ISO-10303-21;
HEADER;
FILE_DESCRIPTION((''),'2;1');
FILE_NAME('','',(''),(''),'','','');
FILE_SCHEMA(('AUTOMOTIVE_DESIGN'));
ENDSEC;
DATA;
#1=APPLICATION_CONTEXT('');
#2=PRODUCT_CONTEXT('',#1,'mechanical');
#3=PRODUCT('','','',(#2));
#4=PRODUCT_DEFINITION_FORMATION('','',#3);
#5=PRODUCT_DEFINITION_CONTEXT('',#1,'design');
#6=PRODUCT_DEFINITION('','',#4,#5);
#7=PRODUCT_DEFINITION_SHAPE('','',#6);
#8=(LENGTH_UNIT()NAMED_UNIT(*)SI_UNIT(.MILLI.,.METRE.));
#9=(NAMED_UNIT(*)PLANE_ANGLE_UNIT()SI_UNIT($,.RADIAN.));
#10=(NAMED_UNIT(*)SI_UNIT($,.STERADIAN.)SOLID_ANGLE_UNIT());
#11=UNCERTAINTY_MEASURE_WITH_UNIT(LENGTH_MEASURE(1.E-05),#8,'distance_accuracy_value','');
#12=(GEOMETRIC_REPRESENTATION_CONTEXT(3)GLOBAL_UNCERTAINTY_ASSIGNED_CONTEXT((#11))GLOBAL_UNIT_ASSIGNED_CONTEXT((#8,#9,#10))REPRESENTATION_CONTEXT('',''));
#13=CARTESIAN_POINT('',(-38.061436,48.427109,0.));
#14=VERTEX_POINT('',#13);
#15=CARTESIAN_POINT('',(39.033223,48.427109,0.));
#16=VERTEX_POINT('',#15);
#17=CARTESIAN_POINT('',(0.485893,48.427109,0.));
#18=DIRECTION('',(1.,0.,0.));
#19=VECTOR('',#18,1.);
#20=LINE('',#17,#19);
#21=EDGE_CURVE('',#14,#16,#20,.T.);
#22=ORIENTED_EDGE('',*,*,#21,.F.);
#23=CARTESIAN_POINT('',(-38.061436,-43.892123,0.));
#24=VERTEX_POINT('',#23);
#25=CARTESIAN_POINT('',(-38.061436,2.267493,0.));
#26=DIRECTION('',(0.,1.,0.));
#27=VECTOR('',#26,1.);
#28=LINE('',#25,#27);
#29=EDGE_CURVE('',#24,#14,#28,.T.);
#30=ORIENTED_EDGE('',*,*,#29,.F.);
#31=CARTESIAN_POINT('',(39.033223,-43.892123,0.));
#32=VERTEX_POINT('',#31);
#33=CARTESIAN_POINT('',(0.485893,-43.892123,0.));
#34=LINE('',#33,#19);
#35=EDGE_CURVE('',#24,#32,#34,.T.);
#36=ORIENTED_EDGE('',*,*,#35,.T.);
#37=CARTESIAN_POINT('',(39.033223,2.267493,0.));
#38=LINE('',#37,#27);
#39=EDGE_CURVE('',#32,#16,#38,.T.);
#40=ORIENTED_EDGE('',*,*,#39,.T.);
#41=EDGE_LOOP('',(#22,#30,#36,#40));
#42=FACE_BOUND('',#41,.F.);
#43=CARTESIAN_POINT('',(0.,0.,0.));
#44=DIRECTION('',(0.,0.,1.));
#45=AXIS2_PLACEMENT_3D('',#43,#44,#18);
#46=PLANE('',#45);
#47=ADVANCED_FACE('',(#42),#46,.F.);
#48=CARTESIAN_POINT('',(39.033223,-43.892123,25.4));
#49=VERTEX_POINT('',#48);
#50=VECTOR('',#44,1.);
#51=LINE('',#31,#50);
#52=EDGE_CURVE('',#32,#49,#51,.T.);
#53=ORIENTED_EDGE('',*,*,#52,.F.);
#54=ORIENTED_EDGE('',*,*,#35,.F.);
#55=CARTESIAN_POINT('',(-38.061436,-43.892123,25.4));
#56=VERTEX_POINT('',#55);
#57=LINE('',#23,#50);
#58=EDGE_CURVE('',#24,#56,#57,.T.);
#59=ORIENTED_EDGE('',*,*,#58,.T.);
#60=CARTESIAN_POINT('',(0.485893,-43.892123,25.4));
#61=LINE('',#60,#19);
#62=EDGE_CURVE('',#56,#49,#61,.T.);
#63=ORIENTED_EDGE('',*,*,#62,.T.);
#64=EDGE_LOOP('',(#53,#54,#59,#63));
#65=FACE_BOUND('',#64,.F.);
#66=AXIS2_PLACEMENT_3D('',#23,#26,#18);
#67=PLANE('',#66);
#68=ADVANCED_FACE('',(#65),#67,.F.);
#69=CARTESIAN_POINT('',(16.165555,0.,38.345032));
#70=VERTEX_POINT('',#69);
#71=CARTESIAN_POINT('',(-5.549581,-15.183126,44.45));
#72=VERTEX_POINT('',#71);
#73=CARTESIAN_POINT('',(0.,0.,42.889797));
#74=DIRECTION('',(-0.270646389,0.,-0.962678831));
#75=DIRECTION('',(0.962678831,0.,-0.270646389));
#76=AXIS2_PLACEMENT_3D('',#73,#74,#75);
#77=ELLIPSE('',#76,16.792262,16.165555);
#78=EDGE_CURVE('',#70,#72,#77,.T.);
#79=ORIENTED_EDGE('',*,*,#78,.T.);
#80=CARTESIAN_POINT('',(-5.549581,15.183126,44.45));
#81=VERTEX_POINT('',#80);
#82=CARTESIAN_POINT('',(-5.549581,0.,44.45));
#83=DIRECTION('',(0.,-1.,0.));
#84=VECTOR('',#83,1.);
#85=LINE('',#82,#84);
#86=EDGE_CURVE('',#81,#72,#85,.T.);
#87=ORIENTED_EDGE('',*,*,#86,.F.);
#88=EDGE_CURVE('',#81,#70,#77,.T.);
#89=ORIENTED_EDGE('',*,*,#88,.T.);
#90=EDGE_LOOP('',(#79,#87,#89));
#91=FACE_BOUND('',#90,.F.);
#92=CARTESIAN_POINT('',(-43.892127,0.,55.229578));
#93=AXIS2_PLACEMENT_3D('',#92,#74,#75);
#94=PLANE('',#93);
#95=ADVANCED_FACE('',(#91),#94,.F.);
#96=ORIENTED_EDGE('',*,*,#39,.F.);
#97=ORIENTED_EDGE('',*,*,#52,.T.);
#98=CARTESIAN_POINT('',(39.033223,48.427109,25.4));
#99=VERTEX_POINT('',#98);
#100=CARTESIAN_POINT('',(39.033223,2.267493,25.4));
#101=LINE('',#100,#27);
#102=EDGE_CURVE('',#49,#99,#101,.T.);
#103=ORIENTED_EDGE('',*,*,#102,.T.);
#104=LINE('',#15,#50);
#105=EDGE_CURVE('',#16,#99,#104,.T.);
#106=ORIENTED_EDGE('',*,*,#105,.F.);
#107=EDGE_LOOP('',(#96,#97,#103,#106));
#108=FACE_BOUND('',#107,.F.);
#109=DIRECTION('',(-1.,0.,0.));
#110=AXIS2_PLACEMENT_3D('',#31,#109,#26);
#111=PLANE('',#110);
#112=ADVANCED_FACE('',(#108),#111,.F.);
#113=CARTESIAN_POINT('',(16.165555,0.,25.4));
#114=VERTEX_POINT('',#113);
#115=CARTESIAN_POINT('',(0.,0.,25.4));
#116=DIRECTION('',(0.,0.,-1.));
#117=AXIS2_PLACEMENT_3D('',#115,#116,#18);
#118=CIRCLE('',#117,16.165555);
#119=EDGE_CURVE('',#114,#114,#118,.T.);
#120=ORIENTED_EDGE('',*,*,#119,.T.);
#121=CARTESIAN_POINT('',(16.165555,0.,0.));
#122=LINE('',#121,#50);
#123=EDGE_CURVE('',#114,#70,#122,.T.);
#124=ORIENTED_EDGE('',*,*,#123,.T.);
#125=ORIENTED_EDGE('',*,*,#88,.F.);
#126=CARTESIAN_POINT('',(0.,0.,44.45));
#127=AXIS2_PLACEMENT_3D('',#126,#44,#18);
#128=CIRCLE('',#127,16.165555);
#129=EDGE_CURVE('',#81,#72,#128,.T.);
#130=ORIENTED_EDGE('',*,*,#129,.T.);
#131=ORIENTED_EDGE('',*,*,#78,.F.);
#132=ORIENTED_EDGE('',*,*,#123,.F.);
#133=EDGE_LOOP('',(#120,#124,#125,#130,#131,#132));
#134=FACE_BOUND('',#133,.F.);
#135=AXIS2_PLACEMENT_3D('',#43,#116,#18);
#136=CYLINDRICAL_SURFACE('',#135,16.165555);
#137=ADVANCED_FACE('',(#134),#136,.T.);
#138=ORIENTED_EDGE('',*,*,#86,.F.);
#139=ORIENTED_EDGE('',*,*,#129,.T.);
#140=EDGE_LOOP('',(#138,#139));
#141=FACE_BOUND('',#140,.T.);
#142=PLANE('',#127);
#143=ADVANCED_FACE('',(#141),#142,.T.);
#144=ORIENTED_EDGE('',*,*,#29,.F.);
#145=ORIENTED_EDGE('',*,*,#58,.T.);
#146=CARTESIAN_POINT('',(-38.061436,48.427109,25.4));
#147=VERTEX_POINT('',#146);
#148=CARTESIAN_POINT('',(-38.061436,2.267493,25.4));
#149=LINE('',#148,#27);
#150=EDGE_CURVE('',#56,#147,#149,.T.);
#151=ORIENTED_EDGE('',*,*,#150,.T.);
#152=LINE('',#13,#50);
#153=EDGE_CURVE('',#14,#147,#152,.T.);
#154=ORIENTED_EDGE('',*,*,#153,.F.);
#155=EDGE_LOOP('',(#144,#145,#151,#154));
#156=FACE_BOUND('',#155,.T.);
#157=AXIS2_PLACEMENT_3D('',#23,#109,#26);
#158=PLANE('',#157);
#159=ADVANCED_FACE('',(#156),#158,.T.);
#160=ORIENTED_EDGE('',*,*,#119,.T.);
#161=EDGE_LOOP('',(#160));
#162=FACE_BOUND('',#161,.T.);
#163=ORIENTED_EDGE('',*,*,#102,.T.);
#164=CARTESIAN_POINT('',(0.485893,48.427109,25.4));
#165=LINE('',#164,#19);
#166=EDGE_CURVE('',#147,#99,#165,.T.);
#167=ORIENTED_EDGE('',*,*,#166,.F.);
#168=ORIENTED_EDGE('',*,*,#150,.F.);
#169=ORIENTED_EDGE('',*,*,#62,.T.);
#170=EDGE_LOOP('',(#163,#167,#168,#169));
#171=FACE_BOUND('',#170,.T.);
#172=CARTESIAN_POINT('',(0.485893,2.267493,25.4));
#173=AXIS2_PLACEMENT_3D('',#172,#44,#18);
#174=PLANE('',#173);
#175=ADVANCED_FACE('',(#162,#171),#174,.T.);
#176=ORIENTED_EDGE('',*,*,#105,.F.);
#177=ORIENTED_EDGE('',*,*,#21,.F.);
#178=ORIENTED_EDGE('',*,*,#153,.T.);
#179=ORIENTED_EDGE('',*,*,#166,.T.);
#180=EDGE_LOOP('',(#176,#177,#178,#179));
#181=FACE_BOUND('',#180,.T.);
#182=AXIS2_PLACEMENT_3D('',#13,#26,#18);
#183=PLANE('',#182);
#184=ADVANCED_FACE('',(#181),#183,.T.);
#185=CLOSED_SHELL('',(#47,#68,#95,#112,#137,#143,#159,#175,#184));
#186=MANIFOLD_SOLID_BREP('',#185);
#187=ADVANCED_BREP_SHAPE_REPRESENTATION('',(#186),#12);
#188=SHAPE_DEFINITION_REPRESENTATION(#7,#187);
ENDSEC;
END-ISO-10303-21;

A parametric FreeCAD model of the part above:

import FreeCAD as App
import Part
import Sketcher

V = App.Vector

doc = App.newDocument("Part")
params = doc.addObject("Spreadsheet::Sheet", "Params")
for row, (alias, value) in enumerate([
    ("pad1_length", "1 in"),
    ("pad2_length", "1.75 in"),
    ("pocket1_length", "9 in"),
], start=1):
    params.set(f"A{row}", alias)
    params.set(f"B{row}", "=" + value)
    params.setAlias(f"B{row}", alias)

body = doc.addObject("PartDesign::Body", "Body")

sketch1 = doc.addObject("Sketcher::SketchObject", "Sketch")
body.addObject(sketch1)
sketch1.AttachmentSupport = (doc.XY_Plane, [""])
sketch1.MapMode = "FlatFace"
sketch1.addGeometry(Part.LineSegment(V(-38, 48, 0), V(-38, -44, 0)), False)
sketch1.addGeometry(Part.LineSegment(V(-38, -44, 0), V(39, -44, 0)), False)
sketch1.addGeometry(Part.LineSegment(V(39, -44, 0), V(39, 48, 0)), False)
sketch1.addGeometry(Part.LineSegment(V(39, 48, 0), V(-38, 48, 0)), False)
sketch1.addConstraint(Sketcher.Constraint("Coincident", 0, 2, 1, 1))
sketch1.addConstraint(Sketcher.Constraint("Coincident", 1, 2, 2, 1))
sketch1.addConstraint(Sketcher.Constraint("Coincident", 2, 2, 3, 1))
sketch1.addConstraint(Sketcher.Constraint("Coincident", 3, 2, 0, 1))
sketch1.addConstraint(Sketcher.Constraint("Vertical", 0))
sketch1.addConstraint(Sketcher.Constraint("Horizontal", 1))
sketch1.addConstraint(Sketcher.Constraint("Vertical", 2))
sketch1.addConstraint(Sketcher.Constraint("Horizontal", 3))
sketch1.addConstraint(Sketcher.Constraint("DistanceX", 1, 1, 1, 2, 77.094659))
sketch1.addConstraint(Sketcher.Constraint("DistanceY", 0, 2, 0, 1, 92.319232))
sketch1.addConstraint(Sketcher.Constraint("DistanceY", -1, 1, 2, 2, 48.427109))
sketch1.addConstraint(Sketcher.Constraint("DistanceX", 0, 2, -1, 1, 38.061436))
pad1 = doc.addObject("PartDesign::Pad", "Pad")
body.addObject(pad1)
pad1.Profile = sketch1
pad1.setExpression("Length", "Params.pad1_length")

sketch2 = doc.addObject("Sketcher::SketchObject", "Sketch001")
body.addObject(sketch2)
sketch2.AttachmentSupport = (doc.XY_Plane, [""])
sketch2.MapMode = "FlatFace"
sketch2.addGeometry(Part.Circle(V(0, 0, 0), V(0, 0, 1), 16), False)
sketch2.addConstraint(Sketcher.Constraint("Coincident", 0, 3, -1, 1))
sketch2.addConstraint(Sketcher.Constraint("Diameter", 0, 32.33111))
pad2 = doc.addObject("PartDesign::Pad", "Pad001")
body.addObject(pad2)
pad2.Profile = sketch2
pad2.setExpression("Length", "Params.pad2_length")

sketch3 = doc.addObject("Sketcher::SketchObject", "Sketch002")
body.addObject(sketch3)
sketch3.AttachmentSupport = (doc.XZ_Plane, [""])
sketch3.MapMode = "FlatFace"
sketch3.addGeometry(Part.LineSegment(V(40, 63, 0), V(-44, 55, 0)), False)
sketch3.addGeometry(Part.LineSegment(V(-44, 55, 0), V(47, 30, 0)), False)
sketch3.addGeometry(Part.LineSegment(V(47, 30, 0), V(40, 63, 0)), False)
sketch3.addConstraint(Sketcher.Constraint("Coincident", 0, 2, 1, 1))
sketch3.addConstraint(Sketcher.Constraint("Coincident", 1, 2, 2, 1))
sketch3.addConstraint(Sketcher.Constraint("Coincident", 2, 2, 0, 1))
sketch3.addConstraint(Sketcher.Constraint("DistanceY", 1, 2, 2, 2, 33.364499))
sketch3.addConstraint(Sketcher.Constraint("DistanceX", 0, 2, 2, 2, 83.5732))
sketch3.addConstraint(Sketcher.Constraint("DistanceY", -1, 1, 1, 2, 29.639332))
sketch3.addConstraint(Sketcher.Constraint("Distance", 0, 83.934014))
sketch3.addConstraint(Sketcher.Constraint("Distance", 1, 94.552327))
sketch3.addConstraint(Sketcher.Constraint("DistanceX", 0, 2, -1, 1, 43.892127))
pocket1 = doc.addObject("PartDesign::Pocket", "Pocket")
body.addObject(pocket1)
pocket1.Profile = sketch3
pocket1.setExpression("Length", "Params.pocket1_length")
pocket1.Midplane = True

doc.recompute()
